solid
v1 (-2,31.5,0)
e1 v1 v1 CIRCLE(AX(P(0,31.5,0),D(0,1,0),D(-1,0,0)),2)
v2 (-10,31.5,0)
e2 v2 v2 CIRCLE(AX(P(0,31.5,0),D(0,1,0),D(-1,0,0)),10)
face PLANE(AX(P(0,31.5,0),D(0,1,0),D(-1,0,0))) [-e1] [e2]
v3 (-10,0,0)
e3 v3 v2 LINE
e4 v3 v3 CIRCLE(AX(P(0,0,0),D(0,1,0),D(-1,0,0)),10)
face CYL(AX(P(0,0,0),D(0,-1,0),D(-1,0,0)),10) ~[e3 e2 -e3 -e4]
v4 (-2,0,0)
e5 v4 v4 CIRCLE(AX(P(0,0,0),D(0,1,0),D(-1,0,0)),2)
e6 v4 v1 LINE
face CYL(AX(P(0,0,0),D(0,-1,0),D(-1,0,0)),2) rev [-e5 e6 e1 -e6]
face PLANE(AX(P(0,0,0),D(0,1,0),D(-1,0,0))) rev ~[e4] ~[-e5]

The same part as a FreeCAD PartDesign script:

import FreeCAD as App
import Part
import Sketcher
from FreeCAD import Vector
Q = App.Units.Quantity

doc = App.newDocument("Part")
body = doc.addObject("PartDesign::Body", "Body")

sketch1 = body.newObject("Sketcher::SketchObject", "Sketch")
sketch1.AttachmentSupport = (doc.getObject("XZ_Plane"), [""])
sketch1.MapMode = "FlatFace"
sketch1.addGeometry([
    Part.Circle(Vector(0, 0, 0), Vector(0, 0, 1), 10),
    Part.Circle(Vector(0, 0, 0), Vector(0, 0, 1), 2),
], False)
sketch1.addConstraint([
    Sketcher.Constraint("Coincident", 0, 3, -1, 1),
    Sketcher.Constraint("Coincident", 1, 3, -1, 1),
    Sketcher.Constraint("Diameter", 0, Q("20 mm")),
    Sketcher.Constraint("Diameter", 1, Q("4 mm")),
])
pad1 = body.newObject("PartDesign::Pad", "Pad")
pad1.Profile = sketch1
pad1.Length = 31.5
pad1.Reversed = True

doc.recompute()
